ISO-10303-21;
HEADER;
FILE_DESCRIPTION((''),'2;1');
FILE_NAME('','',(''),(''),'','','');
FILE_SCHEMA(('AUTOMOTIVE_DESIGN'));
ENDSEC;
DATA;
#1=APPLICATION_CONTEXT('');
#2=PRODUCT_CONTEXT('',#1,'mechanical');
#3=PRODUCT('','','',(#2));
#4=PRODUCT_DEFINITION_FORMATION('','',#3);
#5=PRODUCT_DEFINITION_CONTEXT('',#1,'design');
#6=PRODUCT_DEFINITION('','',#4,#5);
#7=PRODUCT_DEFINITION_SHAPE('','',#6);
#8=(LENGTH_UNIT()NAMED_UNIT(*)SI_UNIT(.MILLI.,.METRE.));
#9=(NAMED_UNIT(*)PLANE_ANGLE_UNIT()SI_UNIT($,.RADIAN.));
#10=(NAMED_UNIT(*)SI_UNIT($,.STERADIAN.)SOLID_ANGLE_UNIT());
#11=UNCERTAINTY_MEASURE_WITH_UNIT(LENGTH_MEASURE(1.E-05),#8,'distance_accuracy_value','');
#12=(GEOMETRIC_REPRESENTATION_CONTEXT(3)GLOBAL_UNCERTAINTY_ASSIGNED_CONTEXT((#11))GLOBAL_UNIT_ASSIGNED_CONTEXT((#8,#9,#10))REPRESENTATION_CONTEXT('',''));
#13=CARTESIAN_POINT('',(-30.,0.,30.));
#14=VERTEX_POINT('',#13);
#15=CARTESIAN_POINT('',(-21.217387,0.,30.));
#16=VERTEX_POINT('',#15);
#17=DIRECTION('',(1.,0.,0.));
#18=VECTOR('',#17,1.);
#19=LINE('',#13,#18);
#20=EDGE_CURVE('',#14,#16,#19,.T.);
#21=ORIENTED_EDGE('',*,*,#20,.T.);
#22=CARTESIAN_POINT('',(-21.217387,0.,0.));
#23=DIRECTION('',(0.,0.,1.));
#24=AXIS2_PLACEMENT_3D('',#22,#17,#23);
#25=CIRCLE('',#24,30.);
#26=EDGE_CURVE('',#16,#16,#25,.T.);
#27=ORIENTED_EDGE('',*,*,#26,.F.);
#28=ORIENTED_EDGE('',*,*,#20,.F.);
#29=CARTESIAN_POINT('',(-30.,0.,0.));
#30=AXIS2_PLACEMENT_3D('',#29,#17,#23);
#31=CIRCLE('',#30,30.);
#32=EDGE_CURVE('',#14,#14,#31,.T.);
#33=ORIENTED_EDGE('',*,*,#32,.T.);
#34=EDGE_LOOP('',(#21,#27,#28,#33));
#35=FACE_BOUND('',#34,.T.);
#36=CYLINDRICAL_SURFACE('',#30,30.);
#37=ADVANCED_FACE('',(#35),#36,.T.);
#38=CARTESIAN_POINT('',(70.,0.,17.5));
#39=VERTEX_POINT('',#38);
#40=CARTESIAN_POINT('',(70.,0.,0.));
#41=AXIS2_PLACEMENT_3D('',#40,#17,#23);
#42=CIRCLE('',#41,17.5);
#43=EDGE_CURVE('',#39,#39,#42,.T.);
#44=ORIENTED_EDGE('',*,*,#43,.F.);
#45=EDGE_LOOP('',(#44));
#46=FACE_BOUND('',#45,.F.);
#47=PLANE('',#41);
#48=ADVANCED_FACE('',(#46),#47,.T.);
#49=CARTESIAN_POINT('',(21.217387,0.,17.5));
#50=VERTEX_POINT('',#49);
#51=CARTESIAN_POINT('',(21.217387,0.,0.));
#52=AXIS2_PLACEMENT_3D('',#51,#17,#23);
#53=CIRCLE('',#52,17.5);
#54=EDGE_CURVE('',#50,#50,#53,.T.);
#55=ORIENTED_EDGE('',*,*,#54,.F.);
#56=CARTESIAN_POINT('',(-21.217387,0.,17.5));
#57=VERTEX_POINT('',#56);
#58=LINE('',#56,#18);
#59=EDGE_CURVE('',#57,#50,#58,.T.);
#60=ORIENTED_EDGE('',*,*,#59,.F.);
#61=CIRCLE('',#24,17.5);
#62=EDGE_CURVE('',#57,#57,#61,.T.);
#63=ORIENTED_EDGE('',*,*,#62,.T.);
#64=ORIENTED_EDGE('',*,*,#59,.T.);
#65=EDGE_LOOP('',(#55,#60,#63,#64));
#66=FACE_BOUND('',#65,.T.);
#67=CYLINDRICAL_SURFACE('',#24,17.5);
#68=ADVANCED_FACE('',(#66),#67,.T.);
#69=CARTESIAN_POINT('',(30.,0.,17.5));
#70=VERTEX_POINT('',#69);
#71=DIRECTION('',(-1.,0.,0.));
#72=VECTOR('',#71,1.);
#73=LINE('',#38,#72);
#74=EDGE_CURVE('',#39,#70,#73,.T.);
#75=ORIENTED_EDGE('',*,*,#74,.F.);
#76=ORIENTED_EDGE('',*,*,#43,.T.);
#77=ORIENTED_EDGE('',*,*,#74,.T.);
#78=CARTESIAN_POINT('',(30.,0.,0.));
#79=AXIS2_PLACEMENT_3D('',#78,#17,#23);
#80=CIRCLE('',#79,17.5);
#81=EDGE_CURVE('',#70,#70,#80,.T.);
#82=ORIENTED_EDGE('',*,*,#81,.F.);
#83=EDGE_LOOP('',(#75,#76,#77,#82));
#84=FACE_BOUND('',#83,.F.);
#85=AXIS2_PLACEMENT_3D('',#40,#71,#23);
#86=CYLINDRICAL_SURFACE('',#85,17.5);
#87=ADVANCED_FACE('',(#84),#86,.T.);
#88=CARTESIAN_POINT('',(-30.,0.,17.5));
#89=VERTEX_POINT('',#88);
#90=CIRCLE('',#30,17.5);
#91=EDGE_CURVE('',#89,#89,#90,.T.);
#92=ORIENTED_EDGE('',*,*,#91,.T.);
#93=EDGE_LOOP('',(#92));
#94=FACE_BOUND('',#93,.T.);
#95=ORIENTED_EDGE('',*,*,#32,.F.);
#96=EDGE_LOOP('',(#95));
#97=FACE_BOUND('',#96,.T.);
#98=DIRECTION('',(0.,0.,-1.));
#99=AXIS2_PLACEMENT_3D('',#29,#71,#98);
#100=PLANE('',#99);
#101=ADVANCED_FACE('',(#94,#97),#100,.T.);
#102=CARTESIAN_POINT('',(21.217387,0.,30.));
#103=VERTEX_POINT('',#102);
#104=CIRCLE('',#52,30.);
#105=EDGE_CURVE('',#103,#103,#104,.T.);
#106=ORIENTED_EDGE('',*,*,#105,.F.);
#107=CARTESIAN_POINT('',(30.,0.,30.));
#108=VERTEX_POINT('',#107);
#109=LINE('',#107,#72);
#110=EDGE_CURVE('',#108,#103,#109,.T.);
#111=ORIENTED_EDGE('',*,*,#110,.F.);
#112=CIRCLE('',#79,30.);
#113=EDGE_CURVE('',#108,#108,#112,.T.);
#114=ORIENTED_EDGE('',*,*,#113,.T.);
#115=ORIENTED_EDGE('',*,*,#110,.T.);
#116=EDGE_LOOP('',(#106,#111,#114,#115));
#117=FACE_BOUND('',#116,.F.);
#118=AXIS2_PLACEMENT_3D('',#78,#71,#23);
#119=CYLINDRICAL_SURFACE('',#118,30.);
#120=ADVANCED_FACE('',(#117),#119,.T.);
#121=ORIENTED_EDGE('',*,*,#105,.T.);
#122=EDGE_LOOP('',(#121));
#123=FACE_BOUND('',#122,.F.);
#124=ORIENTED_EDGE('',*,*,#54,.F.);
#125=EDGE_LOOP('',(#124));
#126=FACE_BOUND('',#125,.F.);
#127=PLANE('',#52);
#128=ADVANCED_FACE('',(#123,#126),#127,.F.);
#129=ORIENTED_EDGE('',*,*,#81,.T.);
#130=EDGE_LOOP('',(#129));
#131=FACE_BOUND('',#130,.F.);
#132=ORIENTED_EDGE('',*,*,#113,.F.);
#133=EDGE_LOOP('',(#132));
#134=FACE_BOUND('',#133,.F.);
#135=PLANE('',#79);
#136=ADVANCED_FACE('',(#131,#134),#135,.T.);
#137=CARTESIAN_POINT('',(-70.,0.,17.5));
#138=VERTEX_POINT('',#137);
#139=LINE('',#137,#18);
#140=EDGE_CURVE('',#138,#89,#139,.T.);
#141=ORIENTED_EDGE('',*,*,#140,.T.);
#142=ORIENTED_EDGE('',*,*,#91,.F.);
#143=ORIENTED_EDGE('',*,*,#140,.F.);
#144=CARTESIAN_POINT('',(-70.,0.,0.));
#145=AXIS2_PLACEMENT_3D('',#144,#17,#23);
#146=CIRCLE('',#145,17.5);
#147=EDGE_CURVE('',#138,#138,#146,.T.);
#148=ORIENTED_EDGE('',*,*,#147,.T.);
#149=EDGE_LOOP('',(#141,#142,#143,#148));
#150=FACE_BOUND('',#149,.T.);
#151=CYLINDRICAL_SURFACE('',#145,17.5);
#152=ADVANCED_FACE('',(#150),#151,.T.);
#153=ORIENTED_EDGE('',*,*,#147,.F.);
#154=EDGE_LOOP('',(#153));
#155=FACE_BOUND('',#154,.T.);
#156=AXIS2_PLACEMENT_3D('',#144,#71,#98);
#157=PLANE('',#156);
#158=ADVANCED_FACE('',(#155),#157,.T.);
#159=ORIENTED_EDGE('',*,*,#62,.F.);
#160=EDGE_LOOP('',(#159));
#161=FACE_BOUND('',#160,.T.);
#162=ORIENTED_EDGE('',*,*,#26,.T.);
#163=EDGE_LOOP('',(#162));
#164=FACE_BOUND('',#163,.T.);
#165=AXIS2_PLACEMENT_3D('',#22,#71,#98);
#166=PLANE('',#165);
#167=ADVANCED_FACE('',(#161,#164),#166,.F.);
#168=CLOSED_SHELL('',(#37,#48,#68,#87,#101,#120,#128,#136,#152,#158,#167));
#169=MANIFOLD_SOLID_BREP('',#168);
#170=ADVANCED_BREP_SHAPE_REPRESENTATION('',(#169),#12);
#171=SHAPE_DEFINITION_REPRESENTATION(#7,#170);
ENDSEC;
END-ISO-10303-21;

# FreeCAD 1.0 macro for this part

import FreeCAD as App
import Part
import Sketcher
from FreeCAD import Vector
Q = App.Units.Quantity


def add_polygon(sketch, points):
    """Adds a closed chain of lines whose ends are joined by coincident constraints."""
    first, n = sketch.GeometryCount, len(points)
    for a, b in zip(points, points[1:] + points[:1]):
        sketch.addGeometry(Part.LineSegment(App.Vector(*a, 0), App.Vector(*b, 0)), False)
    for i in range(n):
        sketch.addConstraint(Sketcher.Constraint("Coincident", first + i, 2, first + (i + 1) % n, 1))

doc = App.newDocument("Part")
body = doc.addObject("PartDesign::Body", "Body")

# Sketch on XZ plane
sketch1 = body.newObject("Sketcher::SketchObject", "Sketch")
sketch1.AttachmentSupport = (doc.getObject("XZ_Plane"), [""])
sketch1.MapMode = "FlatFace"
add_polygon(sketch1, [(0, 0), (70, 0), (70, 18), (30, 18), (30, 30), (21, 30), (21, 18), (0, 18)])  # lines 0-7
sketch1.addConstraint([
    Sketcher.Constraint("Horizontal", 0),
    Sketcher.Constraint("Vertical", 1),
    Sketcher.Constraint("Horizontal", 2),
    Sketcher.Constraint("Vertical", 3),
    Sketcher.Constraint("Horizontal", 4),
    Sketcher.Constraint("Vertical", 5),
    Sketcher.Constraint("Horizontal", 6),
    Sketcher.Constraint("Vertical", 7),
    Sketcher.Constraint("Coincident", 7, 2, -1, 1),
    Sketcher.Constraint("Horizontal", 2, 2, 5, 2),
    Sketcher.Constraint("DistanceX", 0, 1, 0, 2, Q("70 mm")),
    Sketcher.Constraint("DistanceX", 2, 2, 2, 1, Q("40 mm")),
    Sketcher.Constraint("DistanceY", 1, 1, 1, 2, Q("17.5 mm")),
    Sketcher.Constraint("DistanceY", 3, 1, 3, 2, Q("12.5 mm")),
    Sketcher.Constraint("DistanceX", 4, 2, 4, 1, Q("8.782613 mm")),
])
revolution = body.newObject("PartDesign::Revolution", "Revolution")
revolution.Profile = sketch1
revolution.ReferenceAxis = (sketch1, ["H_Axis"])
revolution.Angle = 360
body2 = doc.addObject("PartDesign::Body", "Body001")
doc.recompute()

body2.BaseFeature = body
doc.recompute()

mirroring = doc.addObject("Part::Mirroring", "Mirroring")
mirroring.Source = body
mirroring.Base = Vector(0, 0, 0)
mirroring.Normal = Vector(1, 0, 0)
body3 = doc.addObject("PartDesign::Body", "Body002")
body3.BaseFeature = mirroring
boolean = body2.newObject("PartDesign::Boolean", "Boolean")
boolean.Type = "Fuse"
boolean.addObjects([body3])
doc.recompute()
mirroring.Visibility = False

doc.recompute()
